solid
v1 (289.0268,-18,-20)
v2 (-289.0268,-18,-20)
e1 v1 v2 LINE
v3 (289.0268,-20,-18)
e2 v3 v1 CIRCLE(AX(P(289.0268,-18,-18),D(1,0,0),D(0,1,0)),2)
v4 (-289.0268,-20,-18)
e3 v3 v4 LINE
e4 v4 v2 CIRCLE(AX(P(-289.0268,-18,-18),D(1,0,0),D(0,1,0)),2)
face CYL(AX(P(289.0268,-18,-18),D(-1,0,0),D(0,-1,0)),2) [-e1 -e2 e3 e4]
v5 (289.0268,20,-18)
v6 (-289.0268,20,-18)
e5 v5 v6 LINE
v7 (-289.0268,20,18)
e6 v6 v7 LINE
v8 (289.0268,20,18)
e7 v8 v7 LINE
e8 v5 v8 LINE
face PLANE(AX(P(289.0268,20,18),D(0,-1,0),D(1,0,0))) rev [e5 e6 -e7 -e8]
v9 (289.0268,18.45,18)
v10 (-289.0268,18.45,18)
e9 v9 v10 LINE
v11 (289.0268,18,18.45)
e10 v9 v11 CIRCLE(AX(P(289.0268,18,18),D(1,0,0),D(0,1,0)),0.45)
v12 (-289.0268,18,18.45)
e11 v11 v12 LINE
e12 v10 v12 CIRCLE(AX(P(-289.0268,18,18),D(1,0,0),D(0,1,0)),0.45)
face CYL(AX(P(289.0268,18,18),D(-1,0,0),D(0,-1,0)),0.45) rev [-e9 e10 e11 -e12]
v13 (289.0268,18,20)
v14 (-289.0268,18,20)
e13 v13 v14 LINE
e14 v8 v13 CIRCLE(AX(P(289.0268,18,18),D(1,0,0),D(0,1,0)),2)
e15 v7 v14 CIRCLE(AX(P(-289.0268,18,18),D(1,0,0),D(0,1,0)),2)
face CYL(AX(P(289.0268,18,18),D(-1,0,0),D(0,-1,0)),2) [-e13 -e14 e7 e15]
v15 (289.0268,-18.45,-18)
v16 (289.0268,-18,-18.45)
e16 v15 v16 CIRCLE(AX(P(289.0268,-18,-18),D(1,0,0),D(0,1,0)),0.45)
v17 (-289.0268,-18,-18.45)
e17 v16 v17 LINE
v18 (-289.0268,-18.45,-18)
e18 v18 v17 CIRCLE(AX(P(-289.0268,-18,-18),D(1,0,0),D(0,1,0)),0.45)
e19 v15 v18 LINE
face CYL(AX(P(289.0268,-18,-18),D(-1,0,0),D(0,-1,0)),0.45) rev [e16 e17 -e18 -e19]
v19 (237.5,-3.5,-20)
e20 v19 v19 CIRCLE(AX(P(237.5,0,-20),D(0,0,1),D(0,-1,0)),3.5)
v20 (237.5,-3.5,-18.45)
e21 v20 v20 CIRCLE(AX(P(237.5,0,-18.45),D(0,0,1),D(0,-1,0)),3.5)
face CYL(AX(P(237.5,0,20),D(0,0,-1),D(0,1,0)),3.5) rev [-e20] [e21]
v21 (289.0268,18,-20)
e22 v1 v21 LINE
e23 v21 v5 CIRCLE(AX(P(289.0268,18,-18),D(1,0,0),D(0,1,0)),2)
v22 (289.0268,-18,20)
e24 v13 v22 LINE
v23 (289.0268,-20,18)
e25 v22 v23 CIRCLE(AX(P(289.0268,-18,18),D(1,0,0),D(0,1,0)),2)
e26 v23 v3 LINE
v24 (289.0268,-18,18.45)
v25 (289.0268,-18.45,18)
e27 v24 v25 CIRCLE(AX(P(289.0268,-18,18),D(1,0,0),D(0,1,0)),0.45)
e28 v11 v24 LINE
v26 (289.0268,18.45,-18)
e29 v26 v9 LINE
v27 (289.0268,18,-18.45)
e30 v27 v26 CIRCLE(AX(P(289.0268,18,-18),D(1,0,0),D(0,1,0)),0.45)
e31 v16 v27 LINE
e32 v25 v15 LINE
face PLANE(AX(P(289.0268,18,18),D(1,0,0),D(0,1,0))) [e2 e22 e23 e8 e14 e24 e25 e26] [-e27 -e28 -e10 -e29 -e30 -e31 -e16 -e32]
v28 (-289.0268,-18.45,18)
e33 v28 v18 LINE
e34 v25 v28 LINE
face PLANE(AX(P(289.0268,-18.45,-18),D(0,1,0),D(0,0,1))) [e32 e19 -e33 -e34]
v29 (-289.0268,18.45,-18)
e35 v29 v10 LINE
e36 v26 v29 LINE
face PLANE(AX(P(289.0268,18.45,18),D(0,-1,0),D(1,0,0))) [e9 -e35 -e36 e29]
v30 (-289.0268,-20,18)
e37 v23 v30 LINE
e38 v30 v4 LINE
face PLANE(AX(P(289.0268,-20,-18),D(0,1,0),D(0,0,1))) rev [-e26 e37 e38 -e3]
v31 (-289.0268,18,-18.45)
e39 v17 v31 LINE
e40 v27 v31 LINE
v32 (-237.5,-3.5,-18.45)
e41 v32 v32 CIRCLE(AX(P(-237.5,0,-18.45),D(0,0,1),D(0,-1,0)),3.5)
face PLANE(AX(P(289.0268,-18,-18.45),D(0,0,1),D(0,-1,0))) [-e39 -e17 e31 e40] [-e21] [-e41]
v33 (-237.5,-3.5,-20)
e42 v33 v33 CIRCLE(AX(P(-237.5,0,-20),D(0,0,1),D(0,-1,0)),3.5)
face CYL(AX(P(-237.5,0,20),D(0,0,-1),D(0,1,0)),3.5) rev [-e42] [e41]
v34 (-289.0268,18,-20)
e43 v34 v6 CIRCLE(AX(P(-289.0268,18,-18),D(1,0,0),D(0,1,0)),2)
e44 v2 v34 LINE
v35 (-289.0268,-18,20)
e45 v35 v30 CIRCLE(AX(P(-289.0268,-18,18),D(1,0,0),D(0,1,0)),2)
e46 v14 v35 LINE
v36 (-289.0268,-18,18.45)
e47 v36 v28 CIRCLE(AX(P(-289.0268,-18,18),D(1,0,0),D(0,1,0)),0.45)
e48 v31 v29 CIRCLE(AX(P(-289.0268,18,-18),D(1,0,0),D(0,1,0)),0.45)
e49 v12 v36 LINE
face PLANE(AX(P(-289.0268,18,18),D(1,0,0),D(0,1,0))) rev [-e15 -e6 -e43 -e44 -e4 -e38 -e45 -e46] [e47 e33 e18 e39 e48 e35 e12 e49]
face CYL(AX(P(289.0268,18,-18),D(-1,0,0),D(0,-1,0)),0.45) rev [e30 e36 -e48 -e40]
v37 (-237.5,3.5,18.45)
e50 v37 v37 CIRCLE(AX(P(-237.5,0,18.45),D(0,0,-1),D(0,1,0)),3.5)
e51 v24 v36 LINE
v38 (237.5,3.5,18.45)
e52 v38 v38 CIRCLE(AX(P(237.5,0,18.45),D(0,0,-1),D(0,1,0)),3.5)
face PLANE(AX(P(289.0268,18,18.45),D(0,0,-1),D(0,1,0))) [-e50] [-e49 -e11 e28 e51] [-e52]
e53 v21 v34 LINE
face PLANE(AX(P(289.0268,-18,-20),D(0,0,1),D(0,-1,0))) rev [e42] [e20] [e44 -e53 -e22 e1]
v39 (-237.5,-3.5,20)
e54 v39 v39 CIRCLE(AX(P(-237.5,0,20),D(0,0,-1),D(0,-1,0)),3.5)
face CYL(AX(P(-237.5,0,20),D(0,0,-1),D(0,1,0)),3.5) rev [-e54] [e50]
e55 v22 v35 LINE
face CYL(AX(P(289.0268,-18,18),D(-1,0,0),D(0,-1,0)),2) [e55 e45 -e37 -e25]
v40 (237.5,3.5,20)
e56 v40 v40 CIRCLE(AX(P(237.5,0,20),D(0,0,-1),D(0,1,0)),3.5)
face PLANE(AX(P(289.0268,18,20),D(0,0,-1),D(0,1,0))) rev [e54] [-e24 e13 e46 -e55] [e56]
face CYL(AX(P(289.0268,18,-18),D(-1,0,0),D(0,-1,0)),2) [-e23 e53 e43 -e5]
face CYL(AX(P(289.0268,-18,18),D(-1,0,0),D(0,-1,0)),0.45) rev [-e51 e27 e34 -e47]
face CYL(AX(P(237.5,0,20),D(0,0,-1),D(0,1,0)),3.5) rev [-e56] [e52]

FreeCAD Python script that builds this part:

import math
import FreeCAD as App
import Part
import Sketcher

doc = App.newDocument("Part")
body = doc.addObject("PartDesign::Body", "Body")

# Sketch on YZ plane
sketch1 = body.newObject("Sketcher::SketchObject", "Sketch")
sketch1.AttachmentSupport = (doc.getObject("YZ_Plane"), [""])
sketch1.MapMode = "FlatFace"
sketch1.AttachmentOffset = App.Placement(App.Vector(0, 0, -289.0268), App.Rotation())
sketch1.addGeometry(Part.LineSegment(App.Vector(-18, -20, 0), App.Vector(18, -20, 0)), False)
sketch1.addGeometry(Part.ArcOfCircle(Part.Circle(App.Vector(18, -18, 0), App.Vector(0, 0, 1), 2), math.radians(-90), math.radians(0)), False)
sketch1.addGeometry(Part.LineSegment(App.Vector(20, -18, 0), App.Vector(20, 18, 0)), False)
sketch1.addGeometry(Part.ArcOfCircle(Part.Circle(App.Vector(18, 18, 0), App.Vector(0, 0, 1), 2), math.radians(0), math.radians(90)), False)
sketch1.addGeometry(Part.LineSegment(App.Vector(18, 20, 0), App.Vector(-18, 20, 0)), False)
sketch1.addGeometry(Part.ArcOfCircle(Part.Circle(App.Vector(-18, 18, 0), App.Vector(0, 0, 1), 2), math.radians(90), math.radians(180)), False)
sketch1.addGeometry(Part.LineSegment(App.Vector(-20, 18, 0), App.Vector(-20, -18, 0)), False)
sketch1.addGeometry(Part.ArcOfCircle(Part.Circle(App.Vector(-18, -18, 0), App.Vector(0, 0, 1), 2), math.radians(-180), math.radians(-90)), False)
sketch1.addGeometry(Part.LineSegment(App.Vector(18, -18.45, 0), App.Vector(-18, -18.45, 0)), False)
sketch1.addGeometry(Part.ArcOfCircle(Part.Circle(App.Vector(-18, -18, 0), App.Vector(0, 0, 1), 0.45), math.radians(180), math.radians(270)), False)
sketch1.addGeometry(Part.LineSegment(App.Vector(-18.45, -18, 0), App.Vector(-18.45, 18, 0)), False)
sketch1.addGeometry(Part.ArcOfCircle(Part.Circle(App.Vector(-18, 18, 0), App.Vector(0, 0, 1), 0.45), math.radians(90), math.radians(180)), False)
sketch1.addGeometry(Part.LineSegment(App.Vector(-18, 18.45, 0), App.Vector(18, 18.45, 0)), False)
sketch1.addGeometry(Part.ArcOfCircle(Part.Circle(App.Vector(18, 18, 0), App.Vector(0, 0, 1), 0.45), math.radians(0), math.radians(90)), False)
sketch1.addGeometry(Part.LineSegment(App.Vector(18.45, 18, 0), App.Vector(18.45, -18, 0)), False)
sketch1.addGeometry(Part.ArcOfCircle(Part.Circle(App.Vector(18, -18, 0), App.Vector(0, 0, 1), 0.45), math.radians(-90), math.radians(0)), False)
sketch1.addConstraint(Sketcher.Constraint("Tangent", 0, 2, 1, 1))
sketch1.addConstraint(Sketcher.Constraint("Tangent", 1, 2, 2, 1))
sketch1.addConstraint(Sketcher.Constraint("Tangent", 2, 2, 3, 1))
sketch1.addConstraint(Sketcher.Constraint("Tangent", 3, 2, 4, 1))
sketch1.addConstraint(Sketcher.Constraint("Tangent", 4, 2, 5, 1))
sketch1.addConstraint(Sketcher.Constraint("Tangent", 5, 2, 6, 1))
sketch1.addConstraint(Sketcher.Constraint("Tangent", 6, 2, 7, 1))
sketch1.addConstraint(Sketcher.Constraint("Tangent", 7, 2, 0, 1))
sketch1.addConstraint(Sketcher.Constraint("Tangent", 8, 2, 9, 2))
sketch1.addConstraint(Sketcher.Constraint("Tangent", 9, 1, 10, 1))
sketch1.addConstraint(Sketcher.Constraint("Tangent", 10, 2, 11, 2))
sketch1.addConstraint(Sketcher.Constraint("Tangent", 11, 1, 12, 1))
sketch1.addConstraint(Sketcher.Constraint("Tangent", 12, 2, 13, 2))
sketch1.addConstraint(Sketcher.Constraint("Tangent", 13, 1, 14, 1))
sketch1.addConstraint(Sketcher.Constraint("Tangent", 14, 2, 15, 2))
sketch1.addConstraint(Sketcher.Constraint("Tangent", 15, 1, 8, 1))
sketch1.addConstraint(Sketcher.Constraint("Horizontal", 0))
sketch1.addConstraint(Sketcher.Constraint("Vertical", 2))
sketch1.addConstraint(Sketcher.Constraint("Horizontal", 4))
sketch1.addConstraint(Sketcher.Constraint("Vertical", 6))
sketch1.addConstraint(Sketcher.Constraint("Horizontal", 8))
sketch1.addConstraint(Sketcher.Constraint("Vertical", 10))
sketch1.addConstraint(Sketcher.Constraint("Horizontal", 12))
sketch1.addConstraint(Sketcher.Constraint("Vertical", 14))
sketch1.addConstraint(Sketcher.Constraint("Coincident", 9, 3, 7, 3))
sketch1.addConstraint(Sketcher.Constraint("Coincident", 11, 3, 5, 3))
sketch1.addConstraint(Sketcher.Constraint("Coincident", 13, 3, 3, 3))
sketch1.addConstraint(Sketcher.Constraint("Equal", 1, 3))
sketch1.addConstraint(Sketcher.Constraint("Equal", 3, 5))
sketch1.addConstraint(Sketcher.Constraint("Equal", 5, 7))
sketch1.addConstraint(Sketcher.Constraint("Equal", 13, 15))
sketch1.addConstraint(Sketcher.Constraint("Symmetric", 1, 3, 5, 3, -1, 1))
sketch1.addConstraint(Sketcher.Constraint("Equal", 12, 2))
sketch1.addConstraint(Sketcher.Constraint("Radius", 1, 2.0))
sketch1.addConstraint(Sketcher.Constraint("DistanceX", 0, 1, 0, 2, 36.0))
sketch1.addConstraint(Sketcher.Constraint("Radius", 9, 0.45))
pad1 = body.newObject("PartDesign::Pad", "Pad")
pad1.Profile = sketch1
pad1.Length = 578.0536

# Sketch on XY plane
sketch2 = body.newObject("Sketcher::SketchObject", "Sketch001")
sketch2.AttachmentSupport = (doc.getObject("XY_Plane"), [""])
sketch2.MapMode = "FlatFace"
sketch2.AttachmentOffset = App.Placement(App.Vector(0, 0, -20), App.Rotation())
sketch2.addGeometry(Part.Circle(App.Vector(237.5, 0, 0), App.Vector(0, 0, 1), 3.5), False)
sketch2.addGeometry(Part.Circle(App.Vector(-237.5, 0, 0), App.Vector(0, 0, 1), 3.5), False)
sketch2.addConstraint(Sketcher.Constraint("Equal", 0, 1))
sketch2.addConstraint(Sketcher.Constraint("Symmetric", 0, 3, 1, 3, -1, 1))
sketch2.addConstraint(Sketcher.Constraint("PointOnObject", 0, 3, -1))
sketch2.addConstraint(Sketcher.Constraint("Diameter", 0, 7.0))
sketch2.addConstraint(Sketcher.Constraint("DistanceX", 1, 3, 0, 3, 475.0))
pocket1 = body.newObject("PartDesign::Pocket", "Pocket")
pocket1.Profile = sketch2
pocket1.Type = "ThroughAll"
pocket1.Midplane = True

doc.recompute()
